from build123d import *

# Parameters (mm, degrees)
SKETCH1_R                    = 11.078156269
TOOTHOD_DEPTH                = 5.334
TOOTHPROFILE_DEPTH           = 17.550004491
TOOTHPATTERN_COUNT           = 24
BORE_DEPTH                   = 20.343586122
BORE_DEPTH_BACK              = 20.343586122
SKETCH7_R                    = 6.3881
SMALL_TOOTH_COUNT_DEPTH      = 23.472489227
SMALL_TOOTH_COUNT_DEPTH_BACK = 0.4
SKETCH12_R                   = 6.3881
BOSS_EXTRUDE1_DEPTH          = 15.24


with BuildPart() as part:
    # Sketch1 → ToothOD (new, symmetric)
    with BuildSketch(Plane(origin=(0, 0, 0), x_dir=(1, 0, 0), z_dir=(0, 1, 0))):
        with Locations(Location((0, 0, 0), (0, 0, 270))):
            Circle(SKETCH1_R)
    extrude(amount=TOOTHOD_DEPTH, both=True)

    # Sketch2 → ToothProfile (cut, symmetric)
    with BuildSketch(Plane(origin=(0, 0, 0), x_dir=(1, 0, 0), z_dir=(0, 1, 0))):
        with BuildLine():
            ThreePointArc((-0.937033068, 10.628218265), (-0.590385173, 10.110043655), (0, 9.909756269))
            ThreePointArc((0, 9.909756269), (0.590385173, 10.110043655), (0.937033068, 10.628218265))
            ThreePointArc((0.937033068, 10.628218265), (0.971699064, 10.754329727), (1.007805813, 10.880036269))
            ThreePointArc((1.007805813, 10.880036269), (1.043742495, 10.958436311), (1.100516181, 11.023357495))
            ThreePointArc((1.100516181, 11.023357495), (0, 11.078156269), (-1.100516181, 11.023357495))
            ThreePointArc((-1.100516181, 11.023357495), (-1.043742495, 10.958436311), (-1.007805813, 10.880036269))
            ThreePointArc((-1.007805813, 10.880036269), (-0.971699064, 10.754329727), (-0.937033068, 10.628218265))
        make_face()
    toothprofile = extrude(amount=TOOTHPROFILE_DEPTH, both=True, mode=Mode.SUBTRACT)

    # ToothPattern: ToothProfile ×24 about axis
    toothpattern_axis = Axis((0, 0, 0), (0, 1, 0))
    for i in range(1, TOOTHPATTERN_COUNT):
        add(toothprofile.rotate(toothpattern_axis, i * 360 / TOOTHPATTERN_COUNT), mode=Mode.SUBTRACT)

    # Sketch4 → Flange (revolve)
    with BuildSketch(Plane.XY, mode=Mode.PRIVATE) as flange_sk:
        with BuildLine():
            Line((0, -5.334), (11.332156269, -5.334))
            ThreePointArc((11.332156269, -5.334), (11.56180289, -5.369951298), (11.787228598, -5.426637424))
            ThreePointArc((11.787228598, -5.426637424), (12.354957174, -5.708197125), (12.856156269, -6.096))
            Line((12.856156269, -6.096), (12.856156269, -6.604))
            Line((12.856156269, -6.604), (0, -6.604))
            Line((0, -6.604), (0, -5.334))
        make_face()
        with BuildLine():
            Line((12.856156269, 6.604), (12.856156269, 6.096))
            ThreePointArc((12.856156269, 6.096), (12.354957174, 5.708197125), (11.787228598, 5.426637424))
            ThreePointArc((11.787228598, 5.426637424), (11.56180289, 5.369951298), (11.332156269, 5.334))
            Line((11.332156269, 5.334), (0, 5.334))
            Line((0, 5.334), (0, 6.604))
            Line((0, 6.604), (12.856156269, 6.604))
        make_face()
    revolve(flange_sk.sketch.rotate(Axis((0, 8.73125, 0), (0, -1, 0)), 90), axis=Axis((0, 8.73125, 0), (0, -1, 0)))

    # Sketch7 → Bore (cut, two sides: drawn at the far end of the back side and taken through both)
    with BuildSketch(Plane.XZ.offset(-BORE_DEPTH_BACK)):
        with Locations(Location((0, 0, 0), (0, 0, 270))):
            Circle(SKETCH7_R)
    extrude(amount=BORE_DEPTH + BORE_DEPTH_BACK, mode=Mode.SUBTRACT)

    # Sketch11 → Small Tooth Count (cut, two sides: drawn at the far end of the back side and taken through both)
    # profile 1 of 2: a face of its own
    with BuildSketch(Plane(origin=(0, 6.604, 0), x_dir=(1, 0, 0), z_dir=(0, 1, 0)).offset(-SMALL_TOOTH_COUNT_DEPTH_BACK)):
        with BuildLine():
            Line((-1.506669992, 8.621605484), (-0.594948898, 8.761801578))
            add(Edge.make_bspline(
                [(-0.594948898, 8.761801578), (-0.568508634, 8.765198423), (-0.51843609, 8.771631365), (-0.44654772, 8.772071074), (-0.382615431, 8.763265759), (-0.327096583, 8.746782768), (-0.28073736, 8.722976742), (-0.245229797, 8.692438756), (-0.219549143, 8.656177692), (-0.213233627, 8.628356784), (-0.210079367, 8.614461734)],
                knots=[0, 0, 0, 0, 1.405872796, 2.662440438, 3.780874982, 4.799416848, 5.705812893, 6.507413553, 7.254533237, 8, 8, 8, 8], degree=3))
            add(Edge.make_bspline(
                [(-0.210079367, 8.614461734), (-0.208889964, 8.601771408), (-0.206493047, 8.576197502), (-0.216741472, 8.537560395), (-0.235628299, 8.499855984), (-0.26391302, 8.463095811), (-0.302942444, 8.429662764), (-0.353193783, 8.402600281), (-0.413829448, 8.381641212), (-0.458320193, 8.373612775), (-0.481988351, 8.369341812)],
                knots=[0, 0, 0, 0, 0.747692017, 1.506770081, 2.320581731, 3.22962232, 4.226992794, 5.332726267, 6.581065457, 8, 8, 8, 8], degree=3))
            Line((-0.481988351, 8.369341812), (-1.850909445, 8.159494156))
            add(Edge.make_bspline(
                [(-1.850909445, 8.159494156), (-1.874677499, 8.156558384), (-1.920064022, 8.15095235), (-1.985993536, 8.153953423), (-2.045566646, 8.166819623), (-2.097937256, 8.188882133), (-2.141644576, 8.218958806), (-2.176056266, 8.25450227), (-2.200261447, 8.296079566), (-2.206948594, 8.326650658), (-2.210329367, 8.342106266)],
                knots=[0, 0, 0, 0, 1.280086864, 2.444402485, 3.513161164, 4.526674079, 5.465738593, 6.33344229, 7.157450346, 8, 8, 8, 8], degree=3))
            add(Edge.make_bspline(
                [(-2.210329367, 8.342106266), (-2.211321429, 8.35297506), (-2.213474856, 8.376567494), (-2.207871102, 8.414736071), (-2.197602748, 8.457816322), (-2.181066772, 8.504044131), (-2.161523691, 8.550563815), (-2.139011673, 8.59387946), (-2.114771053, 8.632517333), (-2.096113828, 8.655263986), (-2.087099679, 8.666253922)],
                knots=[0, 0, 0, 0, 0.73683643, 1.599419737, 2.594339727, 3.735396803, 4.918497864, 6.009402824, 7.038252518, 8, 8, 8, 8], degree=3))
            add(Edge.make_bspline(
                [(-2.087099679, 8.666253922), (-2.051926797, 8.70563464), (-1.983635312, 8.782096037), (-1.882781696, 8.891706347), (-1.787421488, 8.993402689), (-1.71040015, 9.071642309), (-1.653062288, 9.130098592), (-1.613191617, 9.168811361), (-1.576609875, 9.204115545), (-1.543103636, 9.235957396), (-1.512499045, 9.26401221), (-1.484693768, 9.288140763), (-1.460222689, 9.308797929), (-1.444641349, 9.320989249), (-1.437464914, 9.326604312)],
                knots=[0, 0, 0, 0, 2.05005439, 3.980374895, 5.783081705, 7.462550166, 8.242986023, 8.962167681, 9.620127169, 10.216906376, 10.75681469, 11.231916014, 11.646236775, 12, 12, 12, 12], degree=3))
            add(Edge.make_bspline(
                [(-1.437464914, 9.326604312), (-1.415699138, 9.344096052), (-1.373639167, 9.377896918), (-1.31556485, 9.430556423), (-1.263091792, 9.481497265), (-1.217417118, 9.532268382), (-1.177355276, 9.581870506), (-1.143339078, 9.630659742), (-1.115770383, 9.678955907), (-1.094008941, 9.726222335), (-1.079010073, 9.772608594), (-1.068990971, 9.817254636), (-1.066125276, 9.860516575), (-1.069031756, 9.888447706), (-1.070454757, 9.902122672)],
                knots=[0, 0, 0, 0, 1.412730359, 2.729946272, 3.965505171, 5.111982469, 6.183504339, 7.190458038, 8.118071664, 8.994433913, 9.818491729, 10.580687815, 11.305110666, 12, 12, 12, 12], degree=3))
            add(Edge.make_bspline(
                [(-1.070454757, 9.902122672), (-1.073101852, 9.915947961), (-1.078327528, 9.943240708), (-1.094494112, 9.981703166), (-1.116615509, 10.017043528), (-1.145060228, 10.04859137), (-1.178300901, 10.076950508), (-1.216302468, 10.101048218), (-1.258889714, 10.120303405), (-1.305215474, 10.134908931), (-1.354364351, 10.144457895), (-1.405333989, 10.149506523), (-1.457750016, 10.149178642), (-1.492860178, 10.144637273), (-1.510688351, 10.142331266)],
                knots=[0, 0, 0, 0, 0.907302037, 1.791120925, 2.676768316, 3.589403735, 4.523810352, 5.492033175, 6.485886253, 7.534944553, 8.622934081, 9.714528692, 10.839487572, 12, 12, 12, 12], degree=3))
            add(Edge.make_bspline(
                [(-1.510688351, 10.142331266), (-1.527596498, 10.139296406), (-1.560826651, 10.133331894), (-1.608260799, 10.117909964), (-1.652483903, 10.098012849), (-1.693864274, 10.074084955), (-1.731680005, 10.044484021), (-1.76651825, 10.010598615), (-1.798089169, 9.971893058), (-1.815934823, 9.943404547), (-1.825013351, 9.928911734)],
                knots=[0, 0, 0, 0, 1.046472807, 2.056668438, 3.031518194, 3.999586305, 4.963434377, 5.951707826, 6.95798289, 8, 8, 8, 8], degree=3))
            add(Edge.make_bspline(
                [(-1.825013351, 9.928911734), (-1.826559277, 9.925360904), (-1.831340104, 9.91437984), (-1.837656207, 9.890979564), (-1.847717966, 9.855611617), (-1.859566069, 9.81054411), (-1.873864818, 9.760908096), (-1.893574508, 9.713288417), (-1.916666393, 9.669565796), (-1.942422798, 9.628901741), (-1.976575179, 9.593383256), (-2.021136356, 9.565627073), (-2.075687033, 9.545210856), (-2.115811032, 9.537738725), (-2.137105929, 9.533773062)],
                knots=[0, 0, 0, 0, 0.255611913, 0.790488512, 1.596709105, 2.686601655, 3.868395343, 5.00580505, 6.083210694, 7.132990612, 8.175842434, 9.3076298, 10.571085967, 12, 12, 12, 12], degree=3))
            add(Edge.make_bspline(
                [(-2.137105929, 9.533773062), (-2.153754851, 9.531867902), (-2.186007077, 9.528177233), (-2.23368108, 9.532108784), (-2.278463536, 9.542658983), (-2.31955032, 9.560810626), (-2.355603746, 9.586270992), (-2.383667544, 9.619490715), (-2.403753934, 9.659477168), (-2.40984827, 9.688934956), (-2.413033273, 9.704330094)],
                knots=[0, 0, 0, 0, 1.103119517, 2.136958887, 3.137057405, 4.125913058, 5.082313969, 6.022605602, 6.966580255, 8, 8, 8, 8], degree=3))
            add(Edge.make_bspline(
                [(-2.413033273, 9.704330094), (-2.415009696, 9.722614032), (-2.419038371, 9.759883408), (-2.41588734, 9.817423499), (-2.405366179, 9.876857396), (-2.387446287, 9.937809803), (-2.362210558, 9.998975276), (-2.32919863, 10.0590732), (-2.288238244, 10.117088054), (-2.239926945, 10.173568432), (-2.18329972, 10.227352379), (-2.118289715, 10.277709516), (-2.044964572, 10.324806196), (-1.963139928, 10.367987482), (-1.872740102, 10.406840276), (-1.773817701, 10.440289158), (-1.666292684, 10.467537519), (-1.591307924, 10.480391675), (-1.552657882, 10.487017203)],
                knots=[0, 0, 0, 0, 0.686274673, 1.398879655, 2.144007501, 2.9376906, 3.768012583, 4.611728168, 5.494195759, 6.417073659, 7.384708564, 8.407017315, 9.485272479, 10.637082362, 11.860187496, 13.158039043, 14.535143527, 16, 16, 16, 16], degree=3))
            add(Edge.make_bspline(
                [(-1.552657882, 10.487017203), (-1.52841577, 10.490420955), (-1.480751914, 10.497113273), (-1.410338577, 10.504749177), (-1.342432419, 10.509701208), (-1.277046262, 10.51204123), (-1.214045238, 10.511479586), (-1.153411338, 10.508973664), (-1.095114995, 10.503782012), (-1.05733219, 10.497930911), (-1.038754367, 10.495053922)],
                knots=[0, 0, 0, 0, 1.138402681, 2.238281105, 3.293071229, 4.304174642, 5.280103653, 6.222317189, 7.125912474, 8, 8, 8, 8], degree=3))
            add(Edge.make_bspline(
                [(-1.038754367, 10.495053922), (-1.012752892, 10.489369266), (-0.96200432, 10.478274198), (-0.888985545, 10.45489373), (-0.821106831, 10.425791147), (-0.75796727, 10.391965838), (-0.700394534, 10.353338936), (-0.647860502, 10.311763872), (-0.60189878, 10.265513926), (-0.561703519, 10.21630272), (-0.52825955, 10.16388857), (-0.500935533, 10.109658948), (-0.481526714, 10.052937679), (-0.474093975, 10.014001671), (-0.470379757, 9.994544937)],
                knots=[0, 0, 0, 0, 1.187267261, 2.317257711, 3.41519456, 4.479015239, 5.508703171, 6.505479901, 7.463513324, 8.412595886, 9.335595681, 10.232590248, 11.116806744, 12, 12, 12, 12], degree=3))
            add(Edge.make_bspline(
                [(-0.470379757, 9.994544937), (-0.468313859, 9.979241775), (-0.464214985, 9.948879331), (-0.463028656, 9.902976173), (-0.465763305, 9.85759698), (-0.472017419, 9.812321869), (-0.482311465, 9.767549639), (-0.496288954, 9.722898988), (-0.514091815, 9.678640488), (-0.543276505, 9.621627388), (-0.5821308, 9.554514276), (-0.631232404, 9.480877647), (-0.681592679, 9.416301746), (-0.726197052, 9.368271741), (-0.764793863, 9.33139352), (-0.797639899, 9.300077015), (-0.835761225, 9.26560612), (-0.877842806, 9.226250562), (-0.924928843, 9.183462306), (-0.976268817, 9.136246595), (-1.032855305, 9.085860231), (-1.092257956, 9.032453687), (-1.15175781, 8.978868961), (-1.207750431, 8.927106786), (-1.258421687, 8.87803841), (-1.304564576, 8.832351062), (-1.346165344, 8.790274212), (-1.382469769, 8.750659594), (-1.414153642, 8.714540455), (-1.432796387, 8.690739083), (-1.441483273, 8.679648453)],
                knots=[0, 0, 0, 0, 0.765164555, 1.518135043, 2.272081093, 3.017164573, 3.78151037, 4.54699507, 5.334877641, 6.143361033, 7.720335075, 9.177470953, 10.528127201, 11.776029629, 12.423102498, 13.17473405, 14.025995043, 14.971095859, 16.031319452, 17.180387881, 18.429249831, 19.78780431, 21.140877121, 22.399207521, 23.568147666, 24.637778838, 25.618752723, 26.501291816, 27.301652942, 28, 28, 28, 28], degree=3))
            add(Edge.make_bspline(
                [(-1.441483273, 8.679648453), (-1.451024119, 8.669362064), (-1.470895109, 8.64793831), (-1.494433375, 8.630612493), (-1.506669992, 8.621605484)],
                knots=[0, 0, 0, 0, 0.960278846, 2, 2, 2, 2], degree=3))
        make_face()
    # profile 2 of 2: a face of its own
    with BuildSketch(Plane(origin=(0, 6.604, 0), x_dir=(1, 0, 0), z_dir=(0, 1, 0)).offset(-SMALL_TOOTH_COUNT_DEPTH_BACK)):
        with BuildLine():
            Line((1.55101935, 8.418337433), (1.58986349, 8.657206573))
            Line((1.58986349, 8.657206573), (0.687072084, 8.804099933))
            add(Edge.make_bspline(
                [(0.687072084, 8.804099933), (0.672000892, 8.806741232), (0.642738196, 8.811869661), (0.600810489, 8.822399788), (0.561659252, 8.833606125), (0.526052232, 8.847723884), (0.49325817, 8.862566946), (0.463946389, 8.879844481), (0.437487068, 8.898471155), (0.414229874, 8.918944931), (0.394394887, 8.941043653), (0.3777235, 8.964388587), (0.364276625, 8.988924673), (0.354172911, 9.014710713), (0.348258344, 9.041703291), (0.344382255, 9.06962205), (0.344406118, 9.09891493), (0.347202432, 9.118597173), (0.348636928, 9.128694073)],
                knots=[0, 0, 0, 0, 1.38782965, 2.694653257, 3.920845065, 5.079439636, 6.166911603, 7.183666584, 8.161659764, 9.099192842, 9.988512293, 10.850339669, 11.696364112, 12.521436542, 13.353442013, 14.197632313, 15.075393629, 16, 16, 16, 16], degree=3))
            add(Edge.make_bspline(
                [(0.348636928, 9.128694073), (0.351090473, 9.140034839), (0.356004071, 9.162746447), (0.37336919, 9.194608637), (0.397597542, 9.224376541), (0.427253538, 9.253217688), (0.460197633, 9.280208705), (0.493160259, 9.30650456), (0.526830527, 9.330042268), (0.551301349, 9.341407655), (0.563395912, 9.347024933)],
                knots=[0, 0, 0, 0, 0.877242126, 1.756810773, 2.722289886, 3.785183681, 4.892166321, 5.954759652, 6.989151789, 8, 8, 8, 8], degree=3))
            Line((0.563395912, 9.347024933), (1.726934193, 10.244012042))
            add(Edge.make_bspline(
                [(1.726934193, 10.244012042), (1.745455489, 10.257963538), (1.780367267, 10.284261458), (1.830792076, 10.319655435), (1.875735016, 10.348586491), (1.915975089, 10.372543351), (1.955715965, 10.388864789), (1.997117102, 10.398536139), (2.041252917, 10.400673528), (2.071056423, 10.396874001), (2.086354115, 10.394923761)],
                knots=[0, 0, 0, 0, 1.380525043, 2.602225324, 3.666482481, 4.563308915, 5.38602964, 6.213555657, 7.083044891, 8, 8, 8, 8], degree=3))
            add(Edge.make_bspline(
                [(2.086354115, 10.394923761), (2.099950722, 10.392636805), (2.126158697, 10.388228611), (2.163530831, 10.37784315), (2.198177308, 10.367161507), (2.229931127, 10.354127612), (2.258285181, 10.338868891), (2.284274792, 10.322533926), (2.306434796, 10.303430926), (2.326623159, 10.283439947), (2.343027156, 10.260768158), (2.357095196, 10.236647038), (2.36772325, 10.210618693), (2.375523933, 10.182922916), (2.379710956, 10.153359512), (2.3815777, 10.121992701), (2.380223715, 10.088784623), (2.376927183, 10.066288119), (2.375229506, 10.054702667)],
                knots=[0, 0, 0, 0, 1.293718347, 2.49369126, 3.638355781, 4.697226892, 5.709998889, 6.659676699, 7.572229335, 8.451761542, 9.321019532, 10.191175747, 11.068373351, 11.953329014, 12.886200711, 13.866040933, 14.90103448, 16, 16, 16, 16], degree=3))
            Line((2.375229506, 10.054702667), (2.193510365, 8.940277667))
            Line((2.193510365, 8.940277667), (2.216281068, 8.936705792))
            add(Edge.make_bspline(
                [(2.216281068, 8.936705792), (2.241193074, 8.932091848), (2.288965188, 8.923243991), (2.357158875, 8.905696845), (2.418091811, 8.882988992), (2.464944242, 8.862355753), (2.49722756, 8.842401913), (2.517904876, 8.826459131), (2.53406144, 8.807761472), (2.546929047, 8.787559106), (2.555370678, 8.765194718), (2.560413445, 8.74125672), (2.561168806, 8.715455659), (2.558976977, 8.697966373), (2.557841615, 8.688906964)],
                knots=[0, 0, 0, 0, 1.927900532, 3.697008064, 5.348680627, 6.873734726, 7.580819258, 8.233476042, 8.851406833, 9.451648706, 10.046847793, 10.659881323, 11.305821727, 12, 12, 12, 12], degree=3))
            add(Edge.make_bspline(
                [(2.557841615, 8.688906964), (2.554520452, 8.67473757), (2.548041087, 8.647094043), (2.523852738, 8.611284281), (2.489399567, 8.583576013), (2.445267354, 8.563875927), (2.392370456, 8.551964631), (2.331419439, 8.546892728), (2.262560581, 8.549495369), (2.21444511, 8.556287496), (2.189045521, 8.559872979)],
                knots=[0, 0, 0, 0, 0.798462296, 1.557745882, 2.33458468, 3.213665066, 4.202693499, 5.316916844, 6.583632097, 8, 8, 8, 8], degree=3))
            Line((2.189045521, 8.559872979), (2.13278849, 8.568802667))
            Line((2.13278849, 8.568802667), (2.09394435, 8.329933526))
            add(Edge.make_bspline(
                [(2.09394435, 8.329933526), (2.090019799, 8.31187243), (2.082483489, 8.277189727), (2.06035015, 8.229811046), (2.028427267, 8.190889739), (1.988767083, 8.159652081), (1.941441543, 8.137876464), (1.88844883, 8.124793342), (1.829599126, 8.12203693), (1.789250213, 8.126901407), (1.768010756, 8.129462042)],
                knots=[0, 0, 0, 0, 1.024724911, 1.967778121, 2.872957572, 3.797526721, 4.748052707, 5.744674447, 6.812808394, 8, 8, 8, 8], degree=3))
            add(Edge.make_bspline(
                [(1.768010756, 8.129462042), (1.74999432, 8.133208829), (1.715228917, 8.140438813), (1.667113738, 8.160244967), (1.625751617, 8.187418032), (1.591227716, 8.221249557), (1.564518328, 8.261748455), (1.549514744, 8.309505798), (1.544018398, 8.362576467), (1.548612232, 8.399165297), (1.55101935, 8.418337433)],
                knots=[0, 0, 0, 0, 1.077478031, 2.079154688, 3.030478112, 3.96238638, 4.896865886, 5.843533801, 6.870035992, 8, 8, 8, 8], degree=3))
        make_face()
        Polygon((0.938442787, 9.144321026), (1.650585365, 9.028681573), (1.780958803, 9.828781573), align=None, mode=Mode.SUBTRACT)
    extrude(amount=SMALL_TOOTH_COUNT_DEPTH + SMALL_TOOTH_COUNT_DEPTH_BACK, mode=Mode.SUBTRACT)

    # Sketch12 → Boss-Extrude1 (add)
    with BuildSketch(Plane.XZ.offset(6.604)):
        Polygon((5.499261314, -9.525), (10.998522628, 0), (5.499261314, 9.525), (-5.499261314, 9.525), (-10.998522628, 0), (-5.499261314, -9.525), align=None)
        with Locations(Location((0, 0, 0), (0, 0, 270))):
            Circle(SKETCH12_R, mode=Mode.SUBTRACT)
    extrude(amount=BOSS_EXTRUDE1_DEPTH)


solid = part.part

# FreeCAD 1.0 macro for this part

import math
import FreeCAD as App
import Part
import Sketcher
Q = App.Units.Quantity


def add_polygon(sketch, points):
    """Adds a closed chain of lines whose ends are joined by coincident constraints."""
    first, n = sketch.GeometryCount, len(points)
    for a, b in zip(points, points[1:] + points[:1]):
        sketch.addGeometry(Part.LineSegment(App.Vector(*a, 0), App.Vector(*b, 0)), False)
    for i in range(n):
        sketch.addConstraint(Sketcher.Constraint("Coincident", first + i, 2, first + (i + 1) % n, 1))

doc = App.newDocument("Part")
body = doc.addObject("PartDesign::Body", "Body")

sketch1 = body.newObject("Sketcher::SketchObject", "Sketch")
sketch1.AttachmentSupport = (doc.getObject("XZ_Plane"), [""])
sketch1.MapMode = "FlatFace"
sketch1.addGeometry(Part.Circle(App.Vector(0, 0, 0), App.Vector(0, 0, 1), 11), False)
sketch1.addConstraint(Sketcher.Constraint("Coincident", 0, 3, -1, 1))
sketch1.addConstraint(Sketcher.Constraint("Diameter", 0, Q("22.156313 mm")))
pad1 = body.newObject("PartDesign::Pad", "Pad")
pad1.Profile = sketch1
pad1.Length = Q("0.42 in")
pad1.Midplane = True

sketch2 = body.newObject("Sketcher::SketchObject", "Sketch001")
sketch2.AttachmentSupport = (doc.getObject("XZ_Plane"), [""])
sketch2.MapMode = "FlatFace"
sketch2.addGeometry(Part.ArcOfCircle(Part.Circle(App.Vector(0, -10.88, 0), App.Vector(0, 0, 1), 0.97), math.radians(90), math.radians(165)), False)
sketch2.addGeometry(Part.ArcOfCircle(Part.Circle(App.Vector(0, -10.88, 0), App.Vector(0, 0, 1), 0.97), math.radians(15), math.radians(90)), False)
sketch2.addGeometry(Part.ArcOfCircle(Part.Circle(App.Vector(11.98, -7.66, 0), App.Vector(0, 0, 1), 11.43), math.radians(-164.96), math.radians(-163.65)), False)
sketch2.addGeometry(Part.ArcOfCircle(Part.Circle(App.Vector(1.3, -10.8, 0), App.Vector(0, 0, 1), 0.3), math.radians(-164), math.radians(-131)), False)
sketch2.addGeometry(Part.ArcOfCircle(Part.Circle(App.Vector(0, 0, 0), App.Vector(0, 0, 1), 11.08), math.radians(-95.7), math.radians(-84.3)), False)
sketch2.addGeometry(Part.ArcOfCircle(Part.Circle(App.Vector(-1.3, -10.8, 0), App.Vector(0, 0, 1), 0.3), math.radians(-49), math.radians(-16)), False)
sketch2.addGeometry(Part.ArcOfCircle(Part.Circle(App.Vector(-11.98, -7.66, 0), App.Vector(0, 0, 1), 11.43), math.radians(-16.35), math.radians(-15.04)), False)
sketch2.addConstraint(Sketcher.Constraint("Tangent", 0, 1, 1, 2))
sketch2.addConstraint(Sketcher.Constraint("Tangent", 1, 1, 2, 1))
sketch2.addConstraint(Sketcher.Constraint("Tangent", 2, 2, 3, 1))
sketch2.addConstraint(Sketcher.Constraint("Coincident", 3, 2, 4, 2))
sketch2.addConstraint(Sketcher.Constraint("Coincident", 4, 1, 5, 1))
sketch2.addConstraint(Sketcher.Constraint("Tangent", 5, 2, 6, 1))
sketch2.addConstraint(Sketcher.Constraint("Tangent", 6, 2, 0, 2))
sketch2.addConstraint(Sketcher.Constraint("Coincident", 4, 3, -1, 1))
sketch2.addConstraint(Sketcher.Constraint("Equal", 0, 1))
sketch2.addConstraint(Sketcher.Constraint("Equal", 3, 5))
sketch2.addConstraint(Sketcher.Constraint("Equal", 2, 6))
sketch2.addConstraint(Sketcher.Constraint("Symmetric", 3, 3, 5, 3, -2))
sketch2.addConstraint(Sketcher.Constraint("PointOnObject", 0, 3, -2))
sketch2.addConstraint(Sketcher.Constraint("PointOnObject", 0, 1, -2))
sketch2.addConstraint(Sketcher.Constraint("Horizontal", 1, 3, 2, 2))
sketch2.addConstraint(Sketcher.Constraint("Radius", 0, Q("0.0382 in")))
sketch2.addConstraint(Sketcher.Constraint("Radius", 3, Q("0.0118 in")))
sketch2.addConstraint(Sketcher.Constraint("DistanceX", -1, 1, 3, 3, Q("0.051 in")))
sketch2.addConstraint(Sketcher.Constraint("Radius", 2, Q("11.430005 mm")))
sketch2.addConstraint(Sketcher.Constraint("Radius", 4, Q("11.078156 mm")))
sketch2.addConstraint(Sketcher.Constraint("DistanceY", 4, 1, 0, 1, Q("1.113601 mm")))
pocket1 = body.newObject("PartDesign::Pocket", "Pocket")
pocket1.Profile = sketch2
pocket1.Length = 35.100009
pocket1.Midplane = True
doc.recompute()

polarpattern = body.newObject("PartDesign::PolarPattern", "PolarPattern")
polarpattern.Originals = [pocket1]
polarpattern.Axis = (doc.getObject("Y_Axis"), [""])
polarpattern.Angle = 360
polarpattern.Occurrences = 24
body.Tip = polarpattern

sketch3 = body.newObject("Sketcher::SketchObject", "Sketch002")
sketch3.AttachmentSupport = (doc.getObject("XY_Plane"), [""])
sketch3.MapMode = "FlatFace"
sketch3.addGeometry(Part.LineSegment(App.Vector(11.33, -5.33, 0), App.Vector(0, -5.33, 0)), False)
sketch3.addGeometry(Part.LineSegment(App.Vector(0, -5.33, 0), App.Vector(0, -6.6, 0)), False)
sketch3.addGeometry(Part.LineSegment(App.Vector(0, -6.6, 0), App.Vector(12.86, -6.6, 0)), False)
sketch3.addGeometry(Part.LineSegment(App.Vector(12.86, -6.6, 0), App.Vector(12.86, -6.1, 0)), False)
sketch3.addGeometry(Part.ArcOfCircle(Part.Circle(App.Vector(10.65, -8.42, 0), App.Vector(0, 0, 1), 3.2), math.radians(47), math.radians(69)), False)
sketch3.addGeometry(Part.ArcOfCircle(Part.Circle(App.Vector(11.05, -7.87, 0), App.Vector(0, 0, 1), 2.55), math.radians(73.28), math.radians(83.71)), False)
sketch3.addGeometry(Part.LineSegment(App.Vector(12.86, 6.1, 0), App.Vector(12.86, 6.6, 0)), False)
sketch3.addGeometry(Part.LineSegment(App.Vector(12.86, 6.6, 0), App.Vector(0, 6.6, 0)), False)
sketch3.addGeometry(Part.LineSegment(App.Vector(0, 6.6, 0), App.Vector(0, 5.33, 0)), False)
sketch3.addGeometry(Part.LineSegment(App.Vector(0, 5.33, 0), App.Vector(11.33, 5.33, 0)), False)
sketch3.addGeometry(Part.ArcOfCircle(Part.Circle(App.Vector(11.05, 7.87, 0), App.Vector(0, 0, 1), 2.55), math.radians(-83.71), math.radians(-73.28)), False)
sketch3.addGeometry(Part.ArcOfCircle(Part.Circle(App.Vector(10.65, 8.42, 0), App.Vector(0, 0, 1), 3.2), math.radians(-69), math.radians(-47)), False)
sketch3.addConstraint(Sketcher.Constraint("Coincident", 0, 2, 1, 1))
sketch3.addConstraint(Sketcher.Constraint("Coincident", 1, 2, 2, 1))
sketch3.addConstraint(Sketcher.Constraint("Coincident", 2, 2, 3, 1))
sketch3.addConstraint(Sketcher.Constraint("Coincident", 3, 2, 4, 1))
sketch3.addConstraint(Sketcher.Constraint("Coincident", 4, 2, 5, 1))
sketch3.addConstraint(Sketcher.Constraint("Coincident", 5, 2, 0, 1))
sketch3.addConstraint(Sketcher.Constraint("Coincident", 6, 2, 7, 1))
sketch3.addConstraint(Sketcher.Constraint("Coincident", 7, 2, 8, 1))
sketch3.addConstraint(Sketcher.Constraint("Coincident", 8, 2, 9, 1))
sketch3.addConstraint(Sketcher.Constraint("Coincident", 9, 2, 10, 1))
sketch3.addConstraint(Sketcher.Constraint("Coincident", 10, 2, 11, 1))
sketch3.addConstraint(Sketcher.Constraint("Coincident", 11, 2, 6, 1))
sketch3.addConstraint(Sketcher.Constraint("Horizontal", 0))
sketch3.addConstraint(Sketcher.Constraint("Vertical", 1))
sketch3.addConstraint(Sketcher.Constraint("Horizontal", 2))
sketch3.addConstraint(Sketcher.Constraint("Vertical", 3))
sketch3.addConstraint(Sketcher.Constraint("Vertical", 6))
sketch3.addConstraint(Sketcher.Constraint("Horizontal", 7))
sketch3.addConstraint(Sketcher.Constraint("Vertical", 8))
sketch3.addConstraint(Sketcher.Constraint("Horizontal", 9))
sketch3.addConstraint(Sketcher.Constraint("Equal", 5, 10))
sketch3.addConstraint(Sketcher.Constraint("Equal", 4, 11))
sketch3.addConstraint(Sketcher.Constraint("Symmetric", 1, 2, 7, 2, -1, 1))
sketch3.addConstraint(Sketcher.Constraint("Symmetric", 5, 3, 10, 3, -1))
sketch3.addConstraint(Sketcher.Constraint("Symmetric", 4, 3, 11, 3, -1))
sketch3.addConstraint(Sketcher.Constraint("Symmetric", 0, 2, 8, 2, -1))
sketch3.addConstraint(Sketcher.Constraint("Vertical", 3, 2, 6, 2))
sketch3.addConstraint(Sketcher.Constraint("DistanceY", 1, 2, 1, 1, Q("0.05 in")))
sketch3.addConstraint(Sketcher.Constraint("DistanceY", 3, 1, 3, 2, Q("0.02 in")))
sketch3.addConstraint(Sketcher.Constraint("DistanceY", 3, 2, 6, 2, Q("0.5 in")))
sketch3.addConstraint(Sketcher.Constraint("DistanceX", 5, 2, 3, 2, Q("0.06 in")))
sketch3.addConstraint(Sketcher.Constraint("Radius", 4, Q("3.203644 mm")))
sketch3.addConstraint(Sketcher.Constraint("Radius", 5, Q("2.553396 mm")))
sketch3.addConstraint(Sketcher.Constraint("DistanceX", 0, 2, 0, 1, Q("11.332156 mm")))
sketch3.addConstraint(Sketcher.Constraint("DistanceY", 5, 3, -1, 1, Q("7.872031 mm")))
sketch3.addConstraint(Sketcher.Constraint("DistanceX", -1, 1, 4, 2, Q("11.787229 mm")))
revolution = body.newObject("PartDesign::Revolution", "Revolution")
revolution.Profile = sketch3
revolution.ReferenceAxis = (sketch3, ["V_Axis"])
revolution.Angle = 360

sketch4 = body.newObject("Sketcher::SketchObject", "Sketch003")
sketch4.AttachmentSupport = (doc.getObject("XZ_Plane"), [""])
sketch4.MapMode = "FlatFace"
sketch4.addGeometry(Part.Circle(App.Vector(0, 0, 0), App.Vector(0, 0, 1), 6), False)
sketch4.addConstraint(Sketcher.Constraint("Coincident", 0, 3, -1, 1))
sketch4.addConstraint(Sketcher.Constraint("Diameter", 0, Q("0.503 in")))
pocket2 = body.newObject("PartDesign::Pocket", "Pocket001")
pocket2.Profile = sketch4
pocket2.Type = "ThroughAll"
pocket2.Midplane = True

sketch5 = body.newObject("Sketcher::SketchObject", "Sketch004")
sketch5.AttachmentSupport = (doc.getObject("XZ_Plane"), [""])
sketch5.MapMode = "FlatFace"
sketch5.AttachmentOffset = App.Placement(App.Vector(0, 0, -0.26 * 25.4), App.Rotation())
sketch5.addGeometry(Part.LineSegment(App.Vector(-0.594949, -8.761802, 0), App.Vector(-1.50667, -8.621605, 0)), False)
sketch5.addGeometry(Part.BSplineCurve([App.Vector(-1.441483, -8.679648, 0), App.Vector(-1.451024, -8.669362, 0), App.Vector(-1.470895, -8.647938, 0), App.Vector(-1.494433, -8.630612, 0), App.Vector(-1.50667, -8.621605, 0)], [4, 1, 4], [0, 0.960278846, 2], False, 3, [1, 1, 1, 1, 1], False), False)
sketch5.addGeometry(Part.BSplineCurve([App.Vector(-0.47038, -9.994545, 0), App.Vector(-0.468314, -9.979242, 0), App.Vector(-0.464215, -9.948879, 0), App.Vector(-0.463029, -9.902976, 0), App.Vector(-0.465763, -9.857597, 0), App.Vector(-0.472017, -9.812322, 0), App.Vector(-0.482311, -9.76755, 0), App.Vector(-0.496289, -9.722899, 0), App.Vector(-0.514092, -9.67864, 0), App.Vector(-0.543277, -9.621627, 0), App.Vector(-0.582131, -9.554514, 0), App.Vector(-0.631232, -9.480878, 0), App.Vector(-0.681593, -9.416302, 0), App.Vector(-0.726197, -9.368272, 0), App.Vector(-0.764794, -9.331394, 0), App.Vector(-0.79764, -9.300077, 0), App.Vector(-0.835761, -9.265606, 0), App.Vector(-0.877843, -9.226251, 0), App.Vector(-0.924929, -9.183462, 0), App.Vector(-0.976269, -9.136247, 0), App.Vector(-1.032855, -9.08586, 0), App.Vector(-1.092258, -9.032454, 0), App.Vector(-1.151758, -8.978869, 0), App.Vector(-1.20775, -8.927107, 0), App.Vector(-1.258422, -8.878038, 0), App.Vector(-1.304565, -8.832351, 0), App.Vector(-1.346165, -8.790274, 0), App.Vector(-1.38247, -8.75066, 0), App.Vector(-1.414154, -8.71454, 0), App.Vector(-1.432796, -8.690739, 0), App.Vector(-1.441483, -8.679648, 0)], [4, 1, 1, 1, 1, 1, 1, 1, 1, 1, 1, 1, 1, 1, 1, 1, 1, 1, 1, 1, 1, 1, 1, 1, 1, 1, 1, 1, 4], [0, 0.765164555, 1.518135043, 2.272081093, 3.017164573, 3.78151037, 4.54699507, 5.334877641, 6.143361033, 7.720335075, 9.177470953, 10.528127201, 11.776029629, 12.423102498, 13.17473405, 14.025995043, 14.971095859, 16.031319452, 17.180387881, 18.429249831, 19.78780431, 21.140877121, 22.399207521, 23.568147666, 24.637778838, 25.618752723, 26.501291816, 27.301652942, 28], False, 3, [1, 1, 1, 1, 1, 1, 1, 1, 1, 1, 1, 1, 1, 1, 1, 1, 1, 1, 1, 1, 1, 1, 1, 1, 1, 1, 1, 1, 1, 1, 1], False), False)
sketch5.addGeometry(Part.BSplineCurve([App.Vector(-1.038754, -10.495054, 0), App.Vector(-1.012753, -10.489369, 0), App.Vector(-0.962004, -10.478274, 0), App.Vector(-0.888986, -10.454894, 0), App.Vector(-0.821107, -10.425791, 0), App.Vector(-0.757967, -10.391966, 0), App.Vector(-0.700395, -10.353339, 0), App.Vector(-0.647861, -10.311764, 0), App.Vector(-0.601899, -10.265514, 0), App.Vector(-0.561704, -10.216303, 0), App.Vector(-0.52826, -10.163889, 0), App.Vector(-0.500936, -10.109659, 0), App.Vector(-0.481527, -10.052938, 0), App.Vector(-0.474094, -10.014002, 0), App.Vector(-0.47038, -9.994545, 0)], [4, 1, 1, 1, 1, 1, 1, 1, 1, 1, 1, 1, 4], [0, 1.187267261, 2.317257711, 3.41519456, 4.479015239, 5.508703171, 6.505479901, 7.463513324, 8.412595886, 9.335595681, 10.232590248, 11.116806744, 12], False, 3, [1, 1, 1, 1, 1, 1, 1, 1, 1, 1, 1, 1, 1, 1, 1], False), False)
sketch5.addGeometry(Part.BSplineCurve([App.Vector(-1.552658, -10.487017, 0), App.Vector(-1.528416, -10.490421, 0), App.Vector(-1.480752, -10.497113, 0), App.Vector(-1.410339, -10.504749, 0), App.Vector(-1.342432, -10.509701, 0), App.Vector(-1.277046, -10.512041, 0), App.Vector(-1.214045, -10.51148, 0), App.Vector(-1.153411, -10.508974, 0), App.Vector(-1.095115, -10.503782, 0), App.Vector(-1.057332, -10.497931, 0), App.Vector(-1.038754, -10.495054, 0)], [4, 1, 1, 1, 1, 1, 1, 1, 4], [0, 1.138402681, 2.238281105, 3.293071229, 4.304174642, 5.280103653, 6.222317189, 7.125912474, 8], False, 3, [1, 1, 1, 1, 1, 1, 1, 1, 1, 1, 1], False), False)
sketch5.addGeometry(Part.BSplineCurve([App.Vector(-2.413033, -9.70433, 0), App.Vector(-2.41501, -9.722614, 0), App.Vector(-2.419038, -9.759883, 0), App.Vector(-2.415887, -9.817423, 0), App.Vector(-2.405366, -9.876857, 0), App.Vector(-2.387446, -9.93781, 0), App.Vector(-2.362211, -9.998975, 0), App.Vector(-2.329199, -10.059073, 0), App.Vector(-2.288238, -10.117088, 0), App.Vector(-2.239927, -10.173568, 0), App.Vector(-2.1833, -10.227352, 0), App.Vector(-2.11829, -10.27771, 0), App.Vector(-2.044965, -10.324806, 0), App.Vector(-1.96314, -10.367987, 0), App.Vector(-1.87274, -10.40684, 0), App.Vector(-1.773818, -10.440289, 0), App.Vector(-1.666293, -10.467538, 0), App.Vector(-1.591308, -10.480392, 0), App.Vector(-1.552658, -10.487017, 0)], [4, 1, 1, 1, 1, 1, 1, 1, 1, 1, 1, 1, 1, 1, 1, 1, 4], [0, 0.686274673, 1.398879655, 2.144007501, 2.9376906, 3.768012583, 4.611728168, 5.494195759, 6.417073659, 7.384708564, 8.407017315, 9.485272479, 10.637082362, 11.860187496, 13.158039043, 14.535143527, 16], False, 3, [1, 1, 1, 1, 1, 1, 1, 1, 1, 1, 1, 1, 1, 1, 1, 1, 1, 1, 1], False), False)
sketch5.addGeometry(Part.BSplineCurve([App.Vector(-2.137106, -9.533773, 0), App.Vector(-2.153755, -9.531868, 0), App.Vector(-2.186007, -9.528177, 0), App.Vector(-2.233681, -9.532109, 0), App.Vector(-2.278464, -9.542659, 0), App.Vector(-2.31955, -9.560811, 0), App.Vector(-2.355604, -9.586271, 0), App.Vector(-2.383668, -9.619491, 0), App.Vector(-2.403754, -9.659477, 0), App.Vector(-2.409848, -9.688935, 0), App.Vector(-2.413033, -9.70433, 0)], [4, 1, 1, 1, 1, 1, 1, 1, 4], [0, 1.103119517, 2.136958887, 3.137057405, 4.125913058, 5.082313969, 6.022605602, 6.966580255, 8], False, 3, [1, 1, 1, 1, 1, 1, 1, 1, 1, 1, 1], False), False)
sketch5.addGeometry(Part.BSplineCurve([App.Vector(-1.825013, -9.928912, 0), App.Vector(-1.826559, -9.925361, 0), App.Vector(-1.83134, -9.91438, 0), App.Vector(-1.837656, -9.89098, 0), App.Vector(-1.847718, -9.855612, 0), App.Vector(-1.859566, -9.810544, 0), App.Vector(-1.873865, -9.760908, 0), App.Vector(-1.893575, -9.713288, 0), App.Vector(-1.916666, -9.669566, 0), App.Vector(-1.942423, -9.628902, 0), App.Vector(-1.976575, -9.593383, 0), App.Vector(-2.021136, -9.565627, 0), App.Vector(-2.075687, -9.545211, 0), App.Vector(-2.115811, -9.537739, 0), App.Vector(-2.137106, -9.533773, 0)], [4, 1, 1, 1, 1, 1, 1, 1, 1, 1, 1, 1, 4], [0, 0.255611913, 0.790488512, 1.596709105, 2.686601655, 3.868395343, 5.00580505, 6.083210694, 7.132990612, 8.175842434, 9.3076298, 10.571085967, 12], False, 3, [1, 1, 1, 1, 1, 1, 1, 1, 1, 1, 1, 1, 1, 1, 1], False), False)
sketch5.addGeometry(Part.BSplineCurve([App.Vector(-1.510688, -10.142331, 0), App.Vector(-1.527596, -10.139296, 0), App.Vector(-1.560827, -10.133332, 0), App.Vector(-1.608261, -10.11791, 0), App.Vector(-1.652484, -10.098013, 0), App.Vector(-1.693864, -10.074085, 0), App.Vector(-1.73168, -10.044484, 0), App.Vector(-1.766518, -10.010599, 0), App.Vector(-1.798089, -9.971893, 0), App.Vector(-1.815935, -9.943405, 0), App.Vector(-1.825013, -9.928912, 0)], [4, 1, 1, 1, 1, 1, 1, 1, 4], [0, 1.046472807, 2.056668438, 3.031518194, 3.999586305, 4.963434377, 5.951707826, 6.95798289, 8], False, 3, [1, 1, 1, 1, 1, 1, 1, 1, 1, 1, 1], False), False)
sketch5.addGeometry(Part.BSplineCurve([App.Vector(-1.070455, -9.902123, 0), App.Vector(-1.073102, -9.915948, 0), App.Vector(-1.078328, -9.943241, 0), App.Vector(-1.094494, -9.981703, 0), App.Vector(-1.116616, -10.017044, 0), App.Vector(-1.14506, -10.048591, 0), App.Vector(-1.178301, -10.076951, 0), App.Vector(-1.216302, -10.101048, 0), App.Vector(-1.25889, -10.120303, 0), App.Vector(-1.305215, -10.134909, 0), App.Vector(-1.354364, -10.144458, 0), App.Vector(-1.405334, -10.149507, 0), App.Vector(-1.45775, -10.149179, 0), App.Vector(-1.49286, -10.144637, 0), App.Vector(-1.510688, -10.142331, 0)], [4, 1, 1, 1, 1, 1, 1, 1, 1, 1, 1, 1, 4], [0, 0.907302037, 1.791120925, 2.676768316, 3.589403735, 4.523810352, 5.492033175, 6.485886253, 7.534944553, 8.622934081, 9.714528692, 10.839487572, 12], False, 3, [1, 1, 1, 1, 1, 1, 1, 1, 1, 1, 1, 1, 1, 1, 1], False), False)
sketch5.addGeometry(Part.BSplineCurve([App.Vector(-1.437465, -9.326604, 0), App.Vector(-1.415699, -9.344096, 0), App.Vector(-1.373639, -9.377897, 0), App.Vector(-1.315565, -9.430556, 0), App.Vector(-1.263092, -9.481497, 0), App.Vector(-1.217417, -9.532268, 0), App.Vector(-1.177355, -9.581871, 0), App.Vector(-1.143339, -9.63066, 0), App.Vector(-1.11577, -9.678956, 0), App.Vector(-1.094009, -9.726222, 0), App.Vector(-1.07901, -9.772609, 0), App.Vector(-1.068991, -9.817255, 0), App.Vector(-1.066125, -9.860517, 0), App.Vector(-1.069032, -9.888448, 0), App.Vector(-1.070455, -9.902123, 0)], [4, 1, 1, 1, 1, 1, 1, 1, 1, 1, 1, 1, 4], [0, 1.412730359, 2.729946272, 3.965505171, 5.111982469, 6.183504339, 7.190458038, 8.118071664, 8.994433913, 9.818491729, 10.580687815, 11.305110666, 12], False, 3, [1, 1, 1, 1, 1, 1, 1, 1, 1, 1, 1, 1, 1, 1, 1], False), False)
sketch5.addGeometry(Part.BSplineCurve([App.Vector(-2.0871, -8.666254, 0), App.Vector(-2.051927, -8.705635, 0), App.Vector(-1.983635, -8.782096, 0), App.Vector(-1.882782, -8.891706, 0), App.Vector(-1.787421, -8.993403, 0), App.Vector(-1.7104, -9.071642, 0), App.Vector(-1.653062, -9.130099, 0), App.Vector(-1.613192, -9.168811, 0), App.Vector(-1.57661, -9.204116, 0), App.Vector(-1.543104, -9.235957, 0), App.Vector(-1.512499, -9.264012, 0), App.Vector(-1.484694, -9.288141, 0), App.Vector(-1.460223, -9.308798, 0), App.Vector(-1.444641, -9.320989, 0), App.Vector(-1.437465, -9.326604, 0)], [4, 1, 1, 1, 1, 1, 1, 1, 1, 1, 1, 1, 4], [0, 2.05005439, 3.980374895, 5.783081705, 7.462550166, 8.242986023, 8.962167681, 9.620127169, 10.216906376, 10.75681469, 11.231916014, 11.646236775, 12], False, 3, [1, 1, 1, 1, 1, 1, 1, 1, 1, 1, 1, 1, 1, 1, 1], False), False)
sketch5.addGeometry(Part.BSplineCurve([App.Vector(-2.210329, -8.342106, 0), App.Vector(-2.211321, -8.352975, 0), App.Vector(-2.213475, -8.376567, 0), App.Vector(-2.207871, -8.414736, 0), App.Vector(-2.197603, -8.457816, 0), App.Vector(-2.181067, -8.504044, 0), App.Vector(-2.161524, -8.550564, 0), App.Vector(-2.139012, -8.593879, 0), App.Vector(-2.114771, -8.632517, 0), App.Vector(-2.096114, -8.655264, 0), App.Vector(-2.0871, -8.666254, 0)], [4, 1, 1, 1, 1, 1, 1, 1, 4], [0, 0.73683643, 1.599419737, 2.594339727, 3.735396803, 4.918497864, 6.009402824, 7.038252518, 8], False, 3, [1, 1, 1, 1, 1, 1, 1, 1, 1, 1, 1], False), False)
sketch5.addGeometry(Part.BSplineCurve([App.Vector(-1.850909, -8.159494, 0), App.Vector(-1.874677, -8.156558, 0), App.Vector(-1.920064, -8.150952, 0), App.Vector(-1.985994, -8.153953, 0), App.Vector(-2.045567, -8.16682, 0), App.Vector(-2.097937, -8.188882, 0), App.Vector(-2.141645, -8.218959, 0), App.Vector(-2.176056, -8.254502, 0), App.Vector(-2.200261, -8.29608, 0), App.Vector(-2.206949, -8.326651, 0), App.Vector(-2.210329, -8.342106, 0)], [4, 1, 1, 1, 1, 1, 1, 1, 4], [0, 1.280086864, 2.444402485, 3.513161164, 4.526674079, 5.465738593, 6.33344229, 7.157450346, 8], False, 3, [1, 1, 1, 1, 1, 1, 1, 1, 1, 1, 1], False), False)
sketch5.addGeometry(Part.LineSegment(App.Vector(-1.850909, -8.159494, 0), App.Vector(-0.481988, -8.369342, 0)), False)
sketch5.addGeometry(Part.BSplineCurve([App.Vector(-0.210079, -8.614462, 0), App.Vector(-0.20889, -8.601771, 0), App.Vector(-0.206493, -8.576198, 0), App.Vector(-0.216741, -8.53756, 0), App.Vector(-0.235628, -8.499856, 0), App.Vector(-0.263913, -8.463096, 0), App.Vector(-0.302942, -8.429663, 0), App.Vector(-0.353194, -8.4026, 0), App.Vector(-0.413829, -8.381641, 0), App.Vector(-0.45832, -8.373613, 0), App.Vector(-0.481988, -8.369342, 0)], [4, 1, 1, 1, 1, 1, 1, 1, 4], [0, 0.747692017, 1.506770081, 2.320581731, 3.22962232, 4.226992794, 5.332726267, 6.581065457, 8], False, 3, [1, 1, 1, 1, 1, 1, 1, 1, 1, 1, 1], False), False)
sketch5.addGeometry(Part.BSplineCurve([App.Vector(-0.594949, -8.761802, 0), App.Vector(-0.568509, -8.765198, 0), App.Vector(-0.518436, -8.771631, 0), App.Vector(-0.446548, -8.772071, 0), App.Vector(-0.382615, -8.763266, 0), App.Vector(-0.327097, -8.746783, 0), App.Vector(-0.280737, -8.722977, 0), App.Vector(-0.24523, -8.692439, 0), App.Vector(-0.219549, -8.656178, 0), App.Vector(-0.213234, -8.628357, 0), App.Vector(-0.210079, -8.614462, 0)], [4, 1, 1, 1, 1, 1, 1, 1, 4], [0, 1.405872796, 2.662440438, 3.780874982, 4.799416848, 5.705812893, 6.507413553, 7.254533237, 8], False, 3, [1, 1, 1, 1, 1, 1, 1, 1, 1, 1, 1], False), False)
sketch5.addGeometry(Part.LineSegment(App.Vector(1.589863, -8.657207, 0), App.Vector(1.551019, -8.418337, 0)), False)
sketch5.addGeometry(Part.BSplineCurve([App.Vector(1.768011, -8.129462, 0), App.Vector(1.749994, -8.133209, 0), App.Vector(1.715229, -8.140439, 0), App.Vector(1.667114, -8.160245, 0), App.Vector(1.625752, -8.187418, 0), App.Vector(1.591228, -8.22125, 0), App.Vector(1.564518, -8.261748, 0), App.Vector(1.549515, -8.309506, 0), App.Vector(1.544018, -8.362576, 0), App.Vector(1.548612, -8.399165, 0), App.Vector(1.551019, -8.418337, 0)], [4, 1, 1, 1, 1, 1, 1, 1, 4], [0, 1.077478031, 2.079154688, 3.030478112, 3.96238638, 4.896865886, 5.843533801, 6.870035992, 8], False, 3, [1, 1, 1, 1, 1, 1, 1, 1, 1, 1, 1], False), False)
sketch5.addGeometry(Part.BSplineCurve([App.Vector(2.093944, -8.329934, 0), App.Vector(2.09002, -8.311872, 0), App.Vector(2.082483, -8.27719, 0), App.Vector(2.06035, -8.229811, 0), App.Vector(2.028427, -8.19089, 0), App.Vector(1.988767, -8.159652, 0), App.Vector(1.941442, -8.137876, 0), App.Vector(1.888449, -8.124793, 0), App.Vector(1.829599, -8.122037, 0), App.Vector(1.78925, -8.126901, 0), App.Vector(1.768011, -8.129462, 0)], [4, 1, 1, 1, 1, 1, 1, 1, 4], [0, 1.024724911, 1.967778121, 2.872957572, 3.797526721, 4.748052707, 5.744674447, 6.812808394, 8], False, 3, [1, 1, 1, 1, 1, 1, 1, 1, 1, 1, 1], False), False)
sketch5.addGeometry(Part.LineSegment(App.Vector(2.093944, -8.329934, 0), App.Vector(2.132788, -8.568803, 0)), False)
sketch5.addGeometry(Part.LineSegment(App.Vector(2.132788, -8.568803, 0), App.Vector(2.189046, -8.559873, 0)), False)
sketch5.addGeometry(Part.BSplineCurve([App.Vector(2.557842, -8.688907, 0), App.Vector(2.55452, -8.674738, 0), App.Vector(2.548041, -8.647094, 0), App.Vector(2.523853, -8.611284, 0), App.Vector(2.4894, -8.583576, 0), App.Vector(2.445267, -8.563876, 0), App.Vector(2.39237, -8.551965, 0), App.Vector(2.331419, -8.546893, 0), App.Vector(2.262561, -8.549495, 0), App.Vector(2.214445, -8.556287, 0), App.Vector(2.189046, -8.559873, 0)], [4, 1, 1, 1, 1, 1, 1, 1, 4], [0, 0.798462296, 1.557745882, 2.33458468, 3.213665066, 4.202693499, 5.316916844, 6.583632097, 8], False, 3, [1, 1, 1, 1, 1, 1, 1, 1, 1, 1, 1], False), False)
sketch5.addGeometry(Part.BSplineCurve([App.Vector(2.216281, -8.936706, 0), App.Vector(2.241193, -8.932092, 0), App.Vector(2.288965, -8.923244, 0), App.Vector(2.357159, -8.905697, 0), App.Vector(2.418092, -8.882989, 0), App.Vector(2.464944, -8.862356, 0), App.Vector(2.497228, -8.842402, 0), App.Vector(2.517905, -8.826459, 0), App.Vector(2.534061, -8.807761, 0), App.Vector(2.546929, -8.787559, 0), App.Vector(2.555371, -8.765195, 0), App.Vector(2.560413, -8.741257, 0), App.Vector(2.561169, -8.715456, 0), App.Vector(2.558977, -8.697966, 0), App.Vector(2.557842, -8.688907, 0)], [4, 1, 1, 1, 1, 1, 1, 1, 1, 1, 1, 1, 4], [0, 1.927900532, 3.697008064, 5.348680627, 6.873734726, 7.580819258, 8.233476042, 8.851406833, 9.451648706, 10.046847793, 10.659881323, 11.305821727, 12], False, 3, [1, 1, 1, 1, 1, 1, 1, 1, 1, 1, 1, 1, 1, 1, 1], False), False)
sketch5.addGeometry(Part.LineSegment(App.Vector(2.216281, -8.936706, 0), App.Vector(2.19351, -8.940278, 0)), False)
sketch5.addGeometry(Part.LineSegment(App.Vector(2.19351, -8.940278, 0), App.Vector(2.37523, -10.054703, 0)), False)
sketch5.addGeometry(Part.BSplineCurve([App.Vector(2.086354, -10.394924, 0), App.Vector(2.099951, -10.392637, 0), App.Vector(2.126159, -10.388229, 0), App.Vector(2.163531, -10.377843, 0), App.Vector(2.198177, -10.367162, 0), App.Vector(2.229931, -10.354128, 0), App.Vector(2.258285, -10.338869, 0), App.Vector(2.284275, -10.322534, 0), App.Vector(2.306435, -10.303431, 0), App.Vector(2.326623, -10.28344, 0), App.Vector(2.343027, -10.260768, 0), App.Vector(2.357095, -10.236647, 0), App.Vector(2.367723, -10.210619, 0), App.Vector(2.375524, -10.182923, 0), App.Vector(2.379711, -10.15336, 0), App.Vector(2.381578, -10.121993, 0), App.Vector(2.380224, -10.088785, 0), App.Vector(2.376927, -10.066288, 0), App.Vector(2.37523, -10.054703, 0)], [4, 1, 1, 1, 1, 1, 1, 1, 1, 1, 1, 1, 1, 1, 1, 1, 4], [0, 1.293718347, 2.49369126, 3.638355781, 4.697226892, 5.709998889, 6.659676699, 7.572229335, 8.451761542, 9.321019532, 10.191175747, 11.068373351, 11.953329014, 12.886200711, 13.866040933, 14.90103448, 16], False, 3, [1, 1, 1, 1, 1, 1, 1, 1, 1, 1, 1, 1, 1, 1, 1, 1, 1, 1, 1], False), False)
sketch5.addGeometry(Part.BSplineCurve([App.Vector(1.726934, -10.244012, 0), App.Vector(1.745455, -10.257964, 0), App.Vector(1.780367, -10.284261, 0), App.Vector(1.830792, -10.319655, 0), App.Vector(1.875735, -10.348586, 0), App.Vector(1.915975, -10.372543, 0), App.Vector(1.955716, -10.388865, 0), App.Vector(1.997117, -10.398536, 0), App.Vector(2.041253, -10.400674, 0), App.Vector(2.071056, -10.396874, 0), App.Vector(2.086354, -10.394924, 0)], [4, 1, 1, 1, 1, 1, 1, 1, 4], [0, 1.380525043, 2.602225324, 3.666482481, 4.563308915, 5.38602964, 6.213555657, 7.083044891, 8], False, 3, [1, 1, 1, 1, 1, 1, 1, 1, 1, 1, 1], False), False)
sketch5.addGeometry(Part.LineSegment(App.Vector(1.726934, -10.244012, 0), App.Vector(0.563396, -9.347025, 0)), False)
sketch5.addGeometry(Part.BSplineCurve([App.Vector(0.348637, -9.128694, 0), App.Vector(0.35109, -9.140035, 0), App.Vector(0.356004, -9.162746, 0), App.Vector(0.373369, -9.194609, 0), App.Vector(0.397598, -9.224377, 0), App.Vector(0.427254, -9.253218, 0), App.Vector(0.460198, -9.280209, 0), App.Vector(0.49316, -9.306505, 0), App.Vector(0.526831, -9.330042, 0), App.Vector(0.551301, -9.341408, 0), App.Vector(0.563396, -9.347025, 0)], [4, 1, 1, 1, 1, 1, 1, 1, 4], [0, 0.877242126, 1.756810773, 2.722289886, 3.785183681, 4.892166321, 5.954759652, 6.989151789, 8], False, 3, [1, 1, 1, 1, 1, 1, 1, 1, 1, 1, 1], False), False)
sketch5.addGeometry(Part.BSplineCurve([App.Vector(0.687072, -8.8041, 0), App.Vector(0.672001, -8.806741, 0), App.Vector(0.642738, -8.81187, 0), App.Vector(0.60081, -8.8224, 0), App.Vector(0.561659, -8.833606, 0), App.Vector(0.526052, -8.847724, 0), App.Vector(0.493258, -8.862567, 0), App.Vector(0.463946, -8.879844, 0), App.Vector(0.437487, -8.898471, 0), App.Vector(0.41423, -8.918945, 0), App.Vector(0.394395, -8.941044, 0), App.Vector(0.377723, -8.964389, 0), App.Vector(0.364277, -8.988925, 0), App.Vector(0.354173, -9.014711, 0), App.Vector(0.348258, -9.041703, 0), App.Vector(0.344382, -9.069622, 0), App.Vector(0.344406, -9.098915, 0), App.Vector(0.347202, -9.118597, 0), App.Vector(0.348637, -9.128694, 0)], [4, 1, 1, 1, 1, 1, 1, 1, 1, 1, 1, 1, 1, 1, 1, 1, 4], [0, 1.38782965, 2.694653257, 3.920845065, 5.079439636, 6.166911603, 7.183666584, 8.161659764, 9.099192842, 9.988512293, 10.850339669, 11.696364112, 12.521436542, 13.353442013, 14.197632313, 15.075393629, 16], False, 3, [1, 1, 1, 1, 1, 1, 1, 1, 1, 1, 1, 1, 1, 1, 1, 1, 1, 1, 1], False), False)
sketch5.addGeometry(Part.LineSegment(App.Vector(0.687072, -8.8041, 0), App.Vector(1.589863, -8.657207, 0)), False)
add_polygon(sketch5, [(0.938443, -9.144321), (1.780959, -9.828782), (1.650585, -9.028682)])
sketch5.addConstraint(Sketcher.Constraint("Block", 1))
sketch5.addConstraint(Sketcher.Constraint("Block", 2))
sketch5.addConstraint(Sketcher.Constraint("Block", 3))
sketch5.addConstraint(Sketcher.Constraint("Block", 4))
sketch5.addConstraint(Sketcher.Constraint("Block", 5))
sketch5.addConstraint(Sketcher.Constraint("Block", 6))
sketch5.addConstraint(Sketcher.Constraint("Block", 7))
sketch5.addConstraint(Sketcher.Constraint("Block", 8))
sketch5.addConstraint(Sketcher.Constraint("Block", 9))
sketch5.addConstraint(Sketcher.Constraint("Block", 10))
sketch5.addConstraint(Sketcher.Constraint("Block", 11))
sketch5.addConstraint(Sketcher.Constraint("Block", 12))
sketch5.addConstraint(Sketcher.Constraint("Block", 13))
sketch5.addConstraint(Sketcher.Constraint("Block", 15))
sketch5.addConstraint(Sketcher.Constraint("Block", 16))
sketch5.addConstraint(Sketcher.Constraint("Block", 18))
sketch5.addConstraint(Sketcher.Constraint("Block", 19))
sketch5.addConstraint(Sketcher.Constraint("Block", 22))
sketch5.addConstraint(Sketcher.Constraint("Block", 23))
sketch5.addConstraint(Sketcher.Constraint("Block", 26))
sketch5.addConstraint(Sketcher.Constraint("Block", 27))
sketch5.addConstraint(Sketcher.Constraint("Block", 29))
sketch5.addConstraint(Sketcher.Constraint("Block", 30))
sketch5.addConstraint(Sketcher.Constraint("Coincident", 0, 2, 1, 2))
sketch5.addConstraint(Sketcher.Constraint("Coincident", 13, 1, 14, 1))
sketch5.addConstraint(Sketcher.Constraint("Coincident", 14, 2, 15, 2))
sketch5.addConstraint(Sketcher.Constraint("Coincident", 16, 1, 0, 1))
sketch5.addConstraint(Sketcher.Constraint("Coincident", 17, 2, 18, 2))
sketch5.addConstraint(Sketcher.Constraint("Coincident", 19, 1, 20, 1))
sketch5.addConstraint(Sketcher.Constraint("Coincident", 20, 2, 21, 1))
sketch5.addConstraint(Sketcher.Constraint("Coincident", 21, 2, 22, 2))
sketch5.addConstraint(Sketcher.Constraint("Coincident", 23, 1, 24, 1))
sketch5.addConstraint(Sketcher.Constraint("Coincident", 24, 2, 25, 1))
sketch5.addConstraint(Sketcher.Constraint("Coincident", 25, 2, 26, 2))
sketch5.addConstraint(Sketcher.Constraint("Coincident", 27, 1, 28, 1))
sketch5.addConstraint(Sketcher.Constraint("Coincident", 28, 2, 29, 2))
sketch5.addConstraint(Sketcher.Constraint("Coincident", 30, 1, 31, 1))
sketch5.addConstraint(Sketcher.Constraint("Coincident", 31, 2, 17, 1))
sketch5.addConstraint(Sketcher.Constraint("DistanceY", 25, 2, 20, 2, Q("0.0585 in")))
sketch5.addConstraint(Sketcher.Constraint("DistanceX", 14, 2, 24, 2, Q("2.675499 mm")))
sketch5.addConstraint(Sketcher.Constraint("Distance", 21, Q("0.056961 mm")))
sketch5.addConstraint(Sketcher.Constraint("Distance", 24, Q("0.023049 mm")))
sketch5.addConstraint(Sketcher.Constraint("Distance", 34, Q("0.72147 mm")))
sketch5.addConstraint(Sketcher.Constraint("DistanceX", -1, 1, 32, 2, Q("1.780959 mm")))
sketch5.addConstraint(Sketcher.Constraint("DistanceY", 32, 2, -1, 1, Q("9.828782 mm")))
sketch5.addConstraint(Sketcher.Constraint("DistanceY", 33, 2, -1, 1, Q("9.028682 mm")))
sketch5.addConstraint(Sketcher.Constraint("DistanceY", 34, 2, -1, 1, Q("9.144321 mm")))
sketch5.addConstraint(Sketcher.Constraint("DistanceY", 31, 2, 17, 2, Q("0.238869 mm")))
sketch5.addConstraint(Sketcher.Constraint("DistanceX", 31, 2, 33, 2, Q("0.060722 mm")))
sketch5.addConstraint(Sketcher.Constraint("DistanceX", 33, 2, 21, 2, Q("0.53846 mm")))
pocket3 = body.newObject("PartDesign::Pocket", "Pocket002")
pocket3.Profile = sketch5
pocket3.Type = "TwoLengths"
pocket3.Length = 23.472489
pocket3.Length2 = 0.4

sketch6 = body.newObject("Sketcher::SketchObject", "Sketch005")
sketch6.AttachmentSupport = (doc.getObject("XZ_Plane"), [""])
sketch6.MapMode = "FlatFace"
sketch6.AttachmentOffset = App.Placement(App.Vector(0, 0, 0.26 * 25.4), App.Rotation())
add_polygon(sketch6, [(5, -10), (11, 0), (5, 10), (-5, 10), (-11, 0), (-5, -10)])
sketch6.addGeometry(Part.Circle(App.Vector(0, 0, 0), App.Vector(0, 0, 1), 6), False)
sketch6.addConstraint(Sketcher.Constraint("Horizontal", 2))
sketch6.addConstraint(Sketcher.Constraint("Horizontal", 5))
sketch6.addConstraint(Sketcher.Constraint("Coincident", 6, 3, -1, 1))
sketch6.addConstraint(Sketcher.Constraint("Symmetric", 0, 2, 3, 2, -1, 1))
sketch6.addConstraint(Sketcher.Constraint("Symmetric", 1, 2, 4, 2, -1, 1))
sketch6.addConstraint(Sketcher.Constraint("PointOnObject", 0, 2, -1))
sketch6.addConstraint(Sketcher.Constraint("Parallel", 0, 3))
sketch6.addConstraint(Sketcher.Constraint("Vertical", 2, 2, 4, 2))
sketch6.addConstraint(Sketcher.Constraint("Diameter", 6, Q("0.503 in")))
sketch6.addConstraint(Sketcher.Constraint("Angle", 0, Q("60 deg")))
sketch6.addConstraint(Sketcher.Constraint("DistanceY", 4, 2, 2, 2, Q("0.75 in")))
sketch6.addConstraint(Sketcher.Constraint("DistanceX", 2, 2, 2, 1, Q("10.998523 mm")))
pad2 = body.newObject("PartDesign::Pad", "Pad001")
pad2.Profile = sketch6
pad2.Length = Q("0.6 in")

doc.recompute()
